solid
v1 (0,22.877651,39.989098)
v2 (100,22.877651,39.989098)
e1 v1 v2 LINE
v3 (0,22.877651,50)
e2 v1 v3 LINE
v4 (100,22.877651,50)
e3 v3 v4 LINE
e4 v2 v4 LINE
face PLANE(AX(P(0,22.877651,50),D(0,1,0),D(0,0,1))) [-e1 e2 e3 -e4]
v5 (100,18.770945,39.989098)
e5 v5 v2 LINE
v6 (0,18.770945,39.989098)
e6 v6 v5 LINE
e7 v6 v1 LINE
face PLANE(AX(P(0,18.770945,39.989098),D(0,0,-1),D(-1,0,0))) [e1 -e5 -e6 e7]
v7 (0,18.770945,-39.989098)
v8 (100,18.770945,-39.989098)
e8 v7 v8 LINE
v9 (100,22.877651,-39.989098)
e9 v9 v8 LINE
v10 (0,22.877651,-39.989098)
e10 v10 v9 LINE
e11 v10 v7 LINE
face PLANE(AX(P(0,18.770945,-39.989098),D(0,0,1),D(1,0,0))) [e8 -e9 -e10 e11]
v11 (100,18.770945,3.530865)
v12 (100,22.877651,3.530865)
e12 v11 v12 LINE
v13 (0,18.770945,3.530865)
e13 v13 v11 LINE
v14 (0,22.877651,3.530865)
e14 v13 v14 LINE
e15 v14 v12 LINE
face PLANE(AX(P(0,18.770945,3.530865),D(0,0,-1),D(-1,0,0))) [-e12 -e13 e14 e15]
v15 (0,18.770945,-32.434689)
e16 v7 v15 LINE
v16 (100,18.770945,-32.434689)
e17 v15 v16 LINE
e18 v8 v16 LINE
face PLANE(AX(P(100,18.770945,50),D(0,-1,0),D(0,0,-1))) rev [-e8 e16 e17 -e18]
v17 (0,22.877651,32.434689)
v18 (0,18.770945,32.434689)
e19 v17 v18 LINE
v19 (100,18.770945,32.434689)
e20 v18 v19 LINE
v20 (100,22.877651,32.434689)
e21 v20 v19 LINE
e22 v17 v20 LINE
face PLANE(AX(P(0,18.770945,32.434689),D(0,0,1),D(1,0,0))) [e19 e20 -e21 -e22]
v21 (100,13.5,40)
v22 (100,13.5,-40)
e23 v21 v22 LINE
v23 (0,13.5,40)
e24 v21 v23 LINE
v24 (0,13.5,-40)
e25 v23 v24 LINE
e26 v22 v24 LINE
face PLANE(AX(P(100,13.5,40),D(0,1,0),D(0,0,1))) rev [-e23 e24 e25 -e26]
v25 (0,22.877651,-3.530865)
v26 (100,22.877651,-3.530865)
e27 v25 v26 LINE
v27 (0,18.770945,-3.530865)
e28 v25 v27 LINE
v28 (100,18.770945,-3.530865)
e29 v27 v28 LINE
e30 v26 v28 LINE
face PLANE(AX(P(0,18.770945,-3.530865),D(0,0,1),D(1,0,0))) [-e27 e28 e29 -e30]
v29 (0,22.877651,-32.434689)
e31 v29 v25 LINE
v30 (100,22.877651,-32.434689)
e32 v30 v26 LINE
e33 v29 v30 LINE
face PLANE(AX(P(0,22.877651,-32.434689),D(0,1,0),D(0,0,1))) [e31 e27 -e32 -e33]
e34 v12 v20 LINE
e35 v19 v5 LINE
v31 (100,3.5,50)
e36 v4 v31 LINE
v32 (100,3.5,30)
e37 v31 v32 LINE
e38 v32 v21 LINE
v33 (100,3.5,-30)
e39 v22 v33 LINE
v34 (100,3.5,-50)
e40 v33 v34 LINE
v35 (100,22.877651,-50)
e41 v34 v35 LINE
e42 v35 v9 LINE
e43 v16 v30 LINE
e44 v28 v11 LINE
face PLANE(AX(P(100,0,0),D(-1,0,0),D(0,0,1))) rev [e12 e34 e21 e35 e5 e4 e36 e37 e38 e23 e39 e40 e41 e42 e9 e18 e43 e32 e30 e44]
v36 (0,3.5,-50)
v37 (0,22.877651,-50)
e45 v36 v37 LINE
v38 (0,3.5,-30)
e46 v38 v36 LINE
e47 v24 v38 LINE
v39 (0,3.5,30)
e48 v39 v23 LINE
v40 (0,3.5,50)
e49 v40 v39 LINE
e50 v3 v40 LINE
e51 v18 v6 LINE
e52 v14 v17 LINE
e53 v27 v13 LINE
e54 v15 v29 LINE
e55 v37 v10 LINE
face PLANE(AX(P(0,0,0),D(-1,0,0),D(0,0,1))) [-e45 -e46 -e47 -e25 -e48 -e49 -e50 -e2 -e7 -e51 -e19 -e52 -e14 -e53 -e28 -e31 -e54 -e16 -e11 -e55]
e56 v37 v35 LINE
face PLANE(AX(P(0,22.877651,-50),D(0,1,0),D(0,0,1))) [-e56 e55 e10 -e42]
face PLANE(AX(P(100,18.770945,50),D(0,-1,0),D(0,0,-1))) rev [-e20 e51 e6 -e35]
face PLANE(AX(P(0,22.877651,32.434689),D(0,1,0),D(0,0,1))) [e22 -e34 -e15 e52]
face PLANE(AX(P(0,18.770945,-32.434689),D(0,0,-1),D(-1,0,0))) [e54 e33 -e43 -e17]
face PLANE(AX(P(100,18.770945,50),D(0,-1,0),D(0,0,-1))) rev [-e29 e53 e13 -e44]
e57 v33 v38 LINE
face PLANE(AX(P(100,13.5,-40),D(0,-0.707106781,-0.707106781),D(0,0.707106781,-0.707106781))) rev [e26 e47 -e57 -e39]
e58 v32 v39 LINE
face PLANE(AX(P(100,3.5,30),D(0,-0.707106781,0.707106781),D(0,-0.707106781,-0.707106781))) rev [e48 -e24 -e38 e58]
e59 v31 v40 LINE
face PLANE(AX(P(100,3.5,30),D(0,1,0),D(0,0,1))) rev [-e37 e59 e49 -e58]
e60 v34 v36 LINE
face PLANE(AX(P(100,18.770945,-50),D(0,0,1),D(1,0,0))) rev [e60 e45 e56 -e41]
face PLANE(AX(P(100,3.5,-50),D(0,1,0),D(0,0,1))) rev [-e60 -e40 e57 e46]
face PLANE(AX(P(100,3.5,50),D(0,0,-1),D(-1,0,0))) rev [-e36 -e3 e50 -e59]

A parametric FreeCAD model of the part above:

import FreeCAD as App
import Part
import Sketcher
from FreeCAD import Vector

doc = App.newDocument("Part")
params = doc.addObject("Spreadsheet::Sheet", "Params")
for row, (alias, value) in enumerate([
    ("sketch1_height", "80 mm"),
    ("sketch1_height2", "20 mm"),
    ("sketch1_height3", "100 mm"),
    ("pad1_length", "100 mm"),
    ("pad2_length", "100 mm"),
], start=1):
    params.set(f"A{row}", alias)
    params.set(f"B{row}", "=" + value)
    params.setAlias(f"B{row}", alias)

body = doc.addObject("PartDesign::Body", "Body")

# Sketch on YZ plane
sketch1 = body.newObject("Sketcher::SketchObject", "Sketch")
sketch1.AttachmentSupport = (doc.getObject("YZ_Plane"), [""])
sketch1.MapMode = "FlatFace"
sketch1.addGeometry(Part.LineSegment(Vector(3.5, 30, 0), Vector(13.5, 40, 0)), False)
sketch1.addGeometry(Part.LineSegment(Vector(13.5, 40, 0), Vector(13.5, -40, 0)), False)
sketch1.addGeometry(Part.LineSegment(Vector(13.5, -40, 0), Vector(3.5, -30, 0)), False)
sketch1.addGeometry(Part.LineSegment(Vector(3.5, -30, 0), Vector(3.5, -50, 0)), False)
sketch1.addGeometry(Part.LineSegment(Vector(3.5, -50, 0), Vector(18.770945, -50, 0)), False)
sketch1.addGeometry(Part.LineSegment(Vector(18.770945, -50, 0), Vector(18.770945, 50, 0)), False)
sketch1.addGeometry(Part.LineSegment(Vector(18.770945, 50, 0), Vector(3.5, 50, 0)), False)
sketch1.addGeometry(Part.LineSegment(Vector(3.5, 50, 0), Vector(3.5, 30, 0)), False)
sketch1.addConstraint(Sketcher.Constraint("Coincident", 0, 2, 1, 1))
sketch1.addConstraint(Sketcher.Constraint("Coincident", 1, 2, 2, 1))
sketch1.addConstraint(Sketcher.Constraint("Coincident", 2, 2, 3, 1))
sketch1.addConstraint(Sketcher.Constraint("Coincident", 3, 2, 4, 1))
sketch1.addConstraint(Sketcher.Constraint("Coincident", 4, 2, 5, 1))
sketch1.addConstraint(Sketcher.Constraint("Coincident", 5, 2, 6, 1))
sketch1.addConstraint(Sketcher.Constraint("Coincident", 6, 2, 7, 1))
sketch1.addConstraint(Sketcher.Constraint("Coincident", 7, 2, 0, 1))
sketch1.addConstraint(Sketcher.Constraint("Vertical", 1))
sketch1.addConstraint(Sketcher.Constraint("Vertical", 3))
sketch1.addConstraint(Sketcher.Constraint("Horizontal", 4))
sketch1.addConstraint(Sketcher.Constraint("Vertical", 5))
sketch1.addConstraint(Sketcher.Constraint("Horizontal", 6))
sketch1.addConstraint(Sketcher.Constraint("Vertical", 7))
sketch1.addConstraint(Sketcher.Constraint("Symmetric", 3, 2, 6, 2, -1))
sketch1.addConstraint(Sketcher.Constraint("Perpendicular", 0, 2))
sketch1.addConstraint(Sketcher.Constraint("Equal", 3, 7))
sketch1.addConstraint(Sketcher.Constraint("Equal", 0, 2))
sketch1.addConstraint(Sketcher.Constraint("DistanceY", 1, 2, 1, 1, 80.0))
sketch1.addConstraint(Sketcher.Constraint("DistanceY", 3, 2, 3, 1, 20.0))
sketch1.addConstraint(Sketcher.Constraint("DistanceY", 5, 1, 5, 2, 100.0))
sketch1.addConstraint(Sketcher.Constraint("DistanceX", -1, 1, 0, 2, 13.5))
sketch1.addConstraint(Sketcher.Constraint("DistanceX", 4, 1, 4, 2, 15.270945))
sketch1.setExpression("Constraints[18]", "Params.sketch1_height")
sketch1.setExpression("Constraints[19]", "Params.sketch1_height2")
sketch1.setExpression("Constraints[20]", "Params.sketch1_height3")
pad1 = body.newObject("PartDesign::Pad", "Pad")
pad1.Profile = sketch1
pad1.setExpression("Length", "Params.pad1_length")

# Sketch on YZ plane
sketch2 = body.newObject("Sketcher::SketchObject", "Sketch001")
sketch2.AttachmentSupport = (doc.getObject("YZ_Plane"), [""])
sketch2.MapMode = "FlatFace"
sketch2.AttachmentOffset = App.Placement(Vector(0, 0, 100), App.Rotation())
sketch2.addGeometry(Part.LineSegment(Vector(22.877651, 50, 0), Vector(18.770945, 50, 0)), False)
sketch2.addGeometry(Part.LineSegment(Vector(18.770945, 50, 0), Vector(18.770945, 39.989098, 0)), False)
sketch2.addGeometry(Part.LineSegment(Vector(18.770945, 39.989098, 0), Vector(22.877651, 39.989098, 0)), False)
sketch2.addGeometry(Part.LineSegment(Vector(22.877651, 39.989098, 0), Vector(22.877651, 50, 0)), False)
sketch2.addGeometry(Part.LineSegment(Vector(22.877651, 32.434689, 0), Vector(18.770945, 32.434689, 0)), False)
sketch2.addGeometry(Part.LineSegment(Vector(18.770945, 32.434689, 0), Vector(18.770945, 3.530865, 0)), False)
sketch2.addGeometry(Part.LineSegment(Vector(18.770945, 3.530865, 0), Vector(22.877651, 3.530865, 0)), False)
sketch2.addGeometry(Part.LineSegment(Vector(22.877651, 3.530865, 0), Vector(22.877651, 32.434689, 0)), False)
sketch2.addGeometry(Part.LineSegment(Vector(22.877651, -3.530865, 0), Vector(18.770945, -3.530865, 0)), False)
sketch2.addGeometry(Part.LineSegment(Vector(18.770945, -3.530865, 0), Vector(18.770945, -32.434689, 0)), False)
sketch2.addGeometry(Part.LineSegment(Vector(18.770945, -32.434689, 0), Vector(22.877651, -32.434689, 0)), False)
sketch2.addGeometry(Part.LineSegment(Vector(22.877651, -32.434689, 0), Vector(22.877651, -3.530865, 0)), False)
sketch2.addGeometry(Part.LineSegment(Vector(22.877651, -39.989098, 0), Vector(18.770945, -39.989098, 0)), False)
sketch2.addGeometry(Part.LineSegment(Vector(18.770945, -39.989098, 0), Vector(18.770945, -50, 0)), False)
sketch2.addGeometry(Part.LineSegment(Vector(18.770945, -50, 0), Vector(22.877651, -50, 0)), False)
sketch2.addGeometry(Part.LineSegment(Vector(22.877651, -50, 0), Vector(22.877651, -39.989098, 0)), False)
sketch2.addConstraint(Sketcher.Constraint("Coincident", 0, 2, 1, 1))
sketch2.addConstraint(Sketcher.Constraint("Coincident", 1, 2, 2, 1))
sketch2.addConstraint(Sketcher.Constraint("Coincident", 2, 2, 3, 1))
sketch2.addConstraint(Sketcher.Constraint("Coincident", 3, 2, 0, 1))
sketch2.addConstraint(Sketcher.Constraint("Coincident", 4, 2, 5, 1))
sketch2.addConstraint(Sketcher.Constraint("Coincident", 5, 2, 6, 1))
sketch2.addConstraint(Sketcher.Constraint("Coincident", 6, 2, 7, 1))
sketch2.addConstraint(Sketcher.Constraint("Coincident", 7, 2, 4, 1))
sketch2.addConstraint(Sketcher.Constraint("Coincident", 8, 2, 9, 1))
sketch2.addConstraint(Sketcher.Constraint("Coincident", 9, 2, 10, 1))
sketch2.addConstraint(Sketcher.Constraint("Coincident", 10, 2, 11, 1))
sketch2.addConstraint(Sketcher.Constraint("Coincident", 11, 2, 8, 1))
sketch2.addConstraint(Sketcher.Constraint("Coincident", 12, 2, 13, 1))
sketch2.addConstraint(Sketcher.Constraint("Coincident", 13, 2, 14, 1))
sketch2.addConstraint(Sketcher.Constraint("Coincident", 14, 2, 15, 1))
sketch2.addConstraint(Sketcher.Constraint("Coincident", 15, 2, 12, 1))
sketch2.addConstraint(Sketcher.Constraint("Horizontal", 0))
sketch2.addConstraint(Sketcher.Constraint("Vertical", 1))
sketch2.addConstraint(Sketcher.Constraint("Horizontal", 2))
sketch2.addConstraint(Sketcher.Constraint("Vertical", 3))
sketch2.addConstraint(Sketcher.Constraint("Horizontal", 4))
sketch2.addConstraint(Sketcher.Constraint("Vertical", 5))
sketch2.addConstraint(Sketcher.Constraint("Horizontal", 6))
sketch2.addConstraint(Sketcher.Constraint("Vertical", 7))
sketch2.addConstraint(Sketcher.Constraint("Horizontal", 8))
sketch2.addConstraint(Sketcher.Constraint("Vertical", 9))
sketch2.addConstraint(Sketcher.Constraint("Horizontal", 10))
sketch2.addConstraint(Sketcher.Constraint("Vertical", 11))
sketch2.addConstraint(Sketcher.Constraint("Horizontal", 12))
sketch2.addConstraint(Sketcher.Constraint("Vertical", 13))
sketch2.addConstraint(Sketcher.Constraint("Horizontal", 14))
sketch2.addConstraint(Sketcher.Constraint("Vertical", 15))
sketch2.addConstraint(Sketcher.Constraint("Symmetric", 5, 2, 8, 2, -1))
sketch2.addConstraint(Sketcher.Constraint("Symmetric", 7, 2, 10, 2, -1))
sketch2.addConstraint(Sketcher.Constraint("Symmetric", 1, 2, 12, 2, -1))
sketch2.addConstraint(Sketcher.Constraint("Symmetric", 3, 2, 14, 2, -1))
sketch2.addConstraint(Sketcher.Constraint("Vertical", 1, 2, 4, 2))
sketch2.addConstraint(Sketcher.Constraint("Vertical", 3, 2, 6, 2))
sketch2.addConstraint(Sketcher.Constraint("DistanceY", -1, 1, 0, 2, 50.0))
sketch2.addConstraint(Sketcher.Constraint("DistanceY", 1, 2, 1, 1, 10.010902))
sketch2.addConstraint(Sketcher.Constraint("DistanceX", 0, 2, 0, 1, 4.106706))
sketch2.addConstraint(Sketcher.Constraint("DistanceY", 5, 2, 5, 1, 28.903825))
sketch2.addConstraint(Sketcher.Constraint("DistanceX", -1, 1, 2, 2, 22.877651))
sketch2.addConstraint(Sketcher.Constraint("DistanceY", -1, 1, 4, 2, 32.434689))
pad2 = body.newObject("PartDesign::Pad", "Pad001")
pad2.Profile = sketch2
pad2.setExpression("Length", "Params.pad2_length")
pad2.Reversed = True

doc.recompute()
